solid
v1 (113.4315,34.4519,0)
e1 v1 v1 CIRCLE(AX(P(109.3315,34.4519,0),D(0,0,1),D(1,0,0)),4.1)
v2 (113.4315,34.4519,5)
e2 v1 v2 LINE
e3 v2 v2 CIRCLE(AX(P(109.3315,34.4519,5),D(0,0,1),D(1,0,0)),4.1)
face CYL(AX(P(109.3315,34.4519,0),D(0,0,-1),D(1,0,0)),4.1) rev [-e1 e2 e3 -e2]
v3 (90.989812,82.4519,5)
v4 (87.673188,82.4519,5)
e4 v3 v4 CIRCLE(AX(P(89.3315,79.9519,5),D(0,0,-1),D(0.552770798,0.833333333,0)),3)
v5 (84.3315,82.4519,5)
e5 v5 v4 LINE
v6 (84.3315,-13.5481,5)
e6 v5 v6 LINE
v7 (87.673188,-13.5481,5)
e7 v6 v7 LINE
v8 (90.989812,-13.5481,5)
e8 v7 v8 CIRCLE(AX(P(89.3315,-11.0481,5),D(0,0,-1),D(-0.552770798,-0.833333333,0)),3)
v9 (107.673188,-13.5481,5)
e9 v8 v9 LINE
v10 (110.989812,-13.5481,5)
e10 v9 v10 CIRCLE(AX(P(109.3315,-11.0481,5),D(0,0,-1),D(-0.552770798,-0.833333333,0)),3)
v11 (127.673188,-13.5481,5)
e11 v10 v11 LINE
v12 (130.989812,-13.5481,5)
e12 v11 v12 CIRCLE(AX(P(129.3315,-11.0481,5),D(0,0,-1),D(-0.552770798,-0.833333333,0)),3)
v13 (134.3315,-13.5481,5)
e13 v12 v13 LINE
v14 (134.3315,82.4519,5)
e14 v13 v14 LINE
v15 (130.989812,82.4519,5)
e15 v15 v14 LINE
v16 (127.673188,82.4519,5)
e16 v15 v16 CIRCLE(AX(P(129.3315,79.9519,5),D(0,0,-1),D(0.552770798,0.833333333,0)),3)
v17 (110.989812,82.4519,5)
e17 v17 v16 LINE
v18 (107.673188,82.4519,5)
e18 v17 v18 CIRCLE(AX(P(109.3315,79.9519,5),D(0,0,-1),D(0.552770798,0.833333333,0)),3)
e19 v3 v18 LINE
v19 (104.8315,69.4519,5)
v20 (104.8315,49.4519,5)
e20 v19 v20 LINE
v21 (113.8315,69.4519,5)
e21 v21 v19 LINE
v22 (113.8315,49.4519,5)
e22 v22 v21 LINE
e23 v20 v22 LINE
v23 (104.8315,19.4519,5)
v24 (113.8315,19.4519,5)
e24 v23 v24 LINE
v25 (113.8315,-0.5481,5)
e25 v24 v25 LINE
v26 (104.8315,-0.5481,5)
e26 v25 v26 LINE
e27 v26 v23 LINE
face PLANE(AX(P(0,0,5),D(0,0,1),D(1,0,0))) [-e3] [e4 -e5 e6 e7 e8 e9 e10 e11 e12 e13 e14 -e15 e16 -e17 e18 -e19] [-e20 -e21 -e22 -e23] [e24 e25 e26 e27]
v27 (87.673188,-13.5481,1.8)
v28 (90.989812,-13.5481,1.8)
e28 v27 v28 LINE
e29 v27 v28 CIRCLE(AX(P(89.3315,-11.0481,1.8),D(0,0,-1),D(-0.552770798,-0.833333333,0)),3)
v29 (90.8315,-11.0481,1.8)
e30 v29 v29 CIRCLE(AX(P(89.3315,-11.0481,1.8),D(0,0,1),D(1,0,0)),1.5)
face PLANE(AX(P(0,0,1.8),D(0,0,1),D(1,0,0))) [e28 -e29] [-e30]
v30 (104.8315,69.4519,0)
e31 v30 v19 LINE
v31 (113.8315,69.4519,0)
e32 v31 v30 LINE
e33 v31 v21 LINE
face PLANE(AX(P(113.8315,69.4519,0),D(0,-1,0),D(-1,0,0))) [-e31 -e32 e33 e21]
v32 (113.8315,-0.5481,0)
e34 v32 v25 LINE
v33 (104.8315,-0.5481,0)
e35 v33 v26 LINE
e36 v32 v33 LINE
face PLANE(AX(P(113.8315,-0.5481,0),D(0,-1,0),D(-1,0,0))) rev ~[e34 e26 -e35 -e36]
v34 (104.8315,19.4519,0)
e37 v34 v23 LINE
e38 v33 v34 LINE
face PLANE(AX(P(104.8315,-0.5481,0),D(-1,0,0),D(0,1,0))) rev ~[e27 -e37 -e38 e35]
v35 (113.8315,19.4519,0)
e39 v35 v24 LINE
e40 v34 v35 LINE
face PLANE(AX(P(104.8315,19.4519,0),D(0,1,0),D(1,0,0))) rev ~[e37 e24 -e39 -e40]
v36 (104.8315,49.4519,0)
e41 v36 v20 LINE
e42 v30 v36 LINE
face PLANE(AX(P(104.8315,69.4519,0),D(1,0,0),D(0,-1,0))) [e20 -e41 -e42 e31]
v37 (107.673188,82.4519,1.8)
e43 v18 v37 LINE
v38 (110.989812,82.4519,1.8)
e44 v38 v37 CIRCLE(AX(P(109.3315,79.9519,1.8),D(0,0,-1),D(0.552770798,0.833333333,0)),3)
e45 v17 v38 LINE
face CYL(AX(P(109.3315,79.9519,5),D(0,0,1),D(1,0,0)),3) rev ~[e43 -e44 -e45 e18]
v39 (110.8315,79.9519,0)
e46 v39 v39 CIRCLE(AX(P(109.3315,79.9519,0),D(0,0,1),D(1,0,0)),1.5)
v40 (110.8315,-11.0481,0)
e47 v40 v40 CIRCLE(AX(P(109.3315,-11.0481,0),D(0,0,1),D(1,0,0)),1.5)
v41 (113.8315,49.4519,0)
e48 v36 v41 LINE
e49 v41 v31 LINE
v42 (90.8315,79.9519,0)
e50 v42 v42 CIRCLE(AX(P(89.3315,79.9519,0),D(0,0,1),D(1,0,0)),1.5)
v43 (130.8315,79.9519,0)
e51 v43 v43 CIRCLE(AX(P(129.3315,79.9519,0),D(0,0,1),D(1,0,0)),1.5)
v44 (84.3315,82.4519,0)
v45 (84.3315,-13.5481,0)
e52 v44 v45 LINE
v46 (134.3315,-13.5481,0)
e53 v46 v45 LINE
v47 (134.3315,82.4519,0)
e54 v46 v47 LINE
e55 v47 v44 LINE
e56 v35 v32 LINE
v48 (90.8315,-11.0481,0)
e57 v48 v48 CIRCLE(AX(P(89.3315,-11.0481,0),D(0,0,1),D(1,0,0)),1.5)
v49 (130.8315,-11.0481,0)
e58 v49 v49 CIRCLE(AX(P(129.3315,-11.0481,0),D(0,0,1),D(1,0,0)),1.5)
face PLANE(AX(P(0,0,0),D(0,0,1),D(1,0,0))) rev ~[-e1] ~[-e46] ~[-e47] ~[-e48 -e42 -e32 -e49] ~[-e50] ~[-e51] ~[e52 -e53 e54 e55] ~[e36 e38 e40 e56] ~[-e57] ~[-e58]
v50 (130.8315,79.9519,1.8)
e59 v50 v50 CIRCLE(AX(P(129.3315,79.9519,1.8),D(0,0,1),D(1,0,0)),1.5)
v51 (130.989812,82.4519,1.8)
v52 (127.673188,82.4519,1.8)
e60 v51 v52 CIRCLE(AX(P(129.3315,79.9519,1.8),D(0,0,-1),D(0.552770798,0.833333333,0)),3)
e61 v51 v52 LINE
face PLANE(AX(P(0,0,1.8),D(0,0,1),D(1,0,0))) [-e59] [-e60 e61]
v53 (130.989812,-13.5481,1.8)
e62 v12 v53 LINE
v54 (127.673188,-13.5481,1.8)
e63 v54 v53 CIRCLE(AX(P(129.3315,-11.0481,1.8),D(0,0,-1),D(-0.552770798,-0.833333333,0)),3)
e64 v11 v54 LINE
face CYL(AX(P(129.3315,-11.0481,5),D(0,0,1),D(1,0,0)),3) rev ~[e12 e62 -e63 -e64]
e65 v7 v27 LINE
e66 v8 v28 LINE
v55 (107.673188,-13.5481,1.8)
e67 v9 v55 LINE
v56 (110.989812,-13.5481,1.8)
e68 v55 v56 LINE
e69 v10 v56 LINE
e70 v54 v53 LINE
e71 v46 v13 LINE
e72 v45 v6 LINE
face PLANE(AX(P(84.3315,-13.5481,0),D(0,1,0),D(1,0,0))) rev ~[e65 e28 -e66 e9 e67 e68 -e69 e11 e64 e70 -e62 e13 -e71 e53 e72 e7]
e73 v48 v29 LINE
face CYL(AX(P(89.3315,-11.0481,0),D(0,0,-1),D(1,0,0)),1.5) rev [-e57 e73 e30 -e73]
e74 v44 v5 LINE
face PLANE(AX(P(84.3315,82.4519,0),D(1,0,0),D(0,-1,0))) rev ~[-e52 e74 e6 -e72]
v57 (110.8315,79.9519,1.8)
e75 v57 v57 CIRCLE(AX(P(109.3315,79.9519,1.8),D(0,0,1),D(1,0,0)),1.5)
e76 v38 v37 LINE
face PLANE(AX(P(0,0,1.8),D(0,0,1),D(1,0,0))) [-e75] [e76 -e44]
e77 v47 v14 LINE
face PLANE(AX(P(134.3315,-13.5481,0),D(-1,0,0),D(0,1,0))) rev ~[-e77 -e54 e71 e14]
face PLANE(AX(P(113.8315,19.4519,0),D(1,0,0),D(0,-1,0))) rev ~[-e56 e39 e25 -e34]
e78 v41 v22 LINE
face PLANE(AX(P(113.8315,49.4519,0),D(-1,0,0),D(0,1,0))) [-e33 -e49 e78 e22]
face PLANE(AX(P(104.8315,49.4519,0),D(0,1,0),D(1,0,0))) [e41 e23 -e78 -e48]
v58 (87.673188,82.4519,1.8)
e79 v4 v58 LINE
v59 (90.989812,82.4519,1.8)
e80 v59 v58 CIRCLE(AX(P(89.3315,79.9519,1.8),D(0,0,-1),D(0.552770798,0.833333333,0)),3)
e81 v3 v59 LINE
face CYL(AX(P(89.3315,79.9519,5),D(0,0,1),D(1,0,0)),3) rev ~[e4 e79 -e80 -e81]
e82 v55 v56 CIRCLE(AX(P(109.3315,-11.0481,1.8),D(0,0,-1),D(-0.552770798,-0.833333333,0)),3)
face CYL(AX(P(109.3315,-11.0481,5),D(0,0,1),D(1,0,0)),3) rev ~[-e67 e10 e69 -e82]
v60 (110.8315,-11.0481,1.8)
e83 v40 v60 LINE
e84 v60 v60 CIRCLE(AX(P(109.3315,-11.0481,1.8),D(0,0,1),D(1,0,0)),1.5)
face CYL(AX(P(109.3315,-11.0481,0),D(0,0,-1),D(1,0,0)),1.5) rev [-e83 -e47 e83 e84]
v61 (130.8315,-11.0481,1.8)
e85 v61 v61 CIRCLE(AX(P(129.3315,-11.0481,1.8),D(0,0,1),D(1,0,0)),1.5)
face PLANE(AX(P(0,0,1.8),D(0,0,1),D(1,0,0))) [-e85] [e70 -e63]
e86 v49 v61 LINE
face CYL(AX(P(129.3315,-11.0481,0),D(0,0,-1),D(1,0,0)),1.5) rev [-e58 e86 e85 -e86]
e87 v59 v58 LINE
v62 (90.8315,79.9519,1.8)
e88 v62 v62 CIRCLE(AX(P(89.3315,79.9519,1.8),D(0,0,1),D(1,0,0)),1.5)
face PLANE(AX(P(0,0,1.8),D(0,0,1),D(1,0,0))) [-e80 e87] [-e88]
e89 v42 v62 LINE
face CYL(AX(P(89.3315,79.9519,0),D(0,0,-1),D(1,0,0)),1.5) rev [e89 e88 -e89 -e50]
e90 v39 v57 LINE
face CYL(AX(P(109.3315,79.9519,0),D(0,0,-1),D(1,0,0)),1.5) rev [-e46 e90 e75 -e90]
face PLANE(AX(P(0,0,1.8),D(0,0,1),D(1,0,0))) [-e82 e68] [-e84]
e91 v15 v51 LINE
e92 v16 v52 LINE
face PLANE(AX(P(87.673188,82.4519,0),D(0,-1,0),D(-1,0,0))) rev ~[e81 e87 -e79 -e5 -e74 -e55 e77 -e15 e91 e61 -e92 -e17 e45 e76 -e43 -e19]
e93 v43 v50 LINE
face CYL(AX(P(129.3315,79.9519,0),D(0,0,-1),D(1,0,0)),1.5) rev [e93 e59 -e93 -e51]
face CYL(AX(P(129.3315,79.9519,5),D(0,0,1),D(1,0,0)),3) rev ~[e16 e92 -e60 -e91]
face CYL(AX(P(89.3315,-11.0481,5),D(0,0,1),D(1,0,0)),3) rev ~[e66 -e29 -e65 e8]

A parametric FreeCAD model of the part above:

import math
import FreeCAD as App
import Part
import Sketcher

V = App.Vector

doc = App.newDocument("Part")
params = doc.addObject("Spreadsheet::Sheet", "Params")
for row, (alias, value) in enumerate([
    ("sketch1_diameter", "3 mm"),
    ("sketch1_diameter2", "8.2 mm"),
    ("sketch1_width", "50 mm"),
    ("sketch1_width2", "9 mm"),
    ("sketch1_height", "96 mm"),
    ("pad1_length", "5 mm"),
    ("sketch2_diameter", "3 mm"),
    ("sketch2_radius", "3 mm"),
    ("pocket1_length", "3.2 mm"),
], start=1):
    params.set(f"A{row}", alias)
    params.set(f"B{row}", "=" + value)
    params.setAlias(f"B{row}", alias)

body = doc.addObject("PartDesign::Body", "Body")

# Sketch on XY plane
sketch1 = doc.addObject("Sketcher::SketchObject", "Sketch")
body.addObject(sketch1)
sketch1.AttachmentSupport = (doc.XY_Plane, [""])
sketch1.MapMode = "FlatFace"
sketch1.addGeometry(Part.LineSegment(V(84.3, 82.5, 0), V(84.3, -13.5, 0)), False)
sketch1.addGeometry(Part.LineSegment(V(84.3, -13.5, 0), V(134.3, -13.5, 0)), False)
sketch1.addGeometry(Part.LineSegment(V(134.3, -13.5, 0), V(134.3, 82.5, 0)), False)
sketch1.addGeometry(Part.LineSegment(V(134.3, 82.5, 0), V(84.3, 82.5, 0)), False)
sketch1.addGeometry(Part.LineSegment(V(113.8, 19.5, 0), V(113.8, -0.5, 0)), False)
sketch1.addGeometry(Part.LineSegment(V(113.8, -0.5, 0), V(104.8, -0.5, 0)), False)
sketch1.addGeometry(Part.LineSegment(V(104.8, -0.5, 0), V(104.8, 19.5, 0)), False)
sketch1.addGeometry(Part.LineSegment(V(104.8, 19.5, 0), V(113.8, 19.5, 0)), False)
sketch1.addGeometry(Part.Circle(V(109.3, 34.5, 0), V(0, 0, 1), 4.1), False)
sketch1.addGeometry(Part.LineSegment(V(113.8, 69.5, 0), V(113.8, 49.5, 0)), False)
sketch1.addGeometry(Part.LineSegment(V(113.8, 49.5, 0), V(104.8, 49.5, 0)), False)
sketch1.addGeometry(Part.LineSegment(V(104.8, 49.5, 0), V(104.8, 69.5, 0)), False)
sketch1.addGeometry(Part.LineSegment(V(104.8, 69.5, 0), V(113.8, 69.5, 0)), False)
sketch1.addGeometry(Part.Circle(V(89.3, 80, 0), V(0, 0, 1), 1.5), False)
sketch1.addGeometry(Part.Circle(V(109.3, 80, 0), V(0, 0, 1), 1.5), False)
sketch1.addGeometry(Part.Circle(V(129.3, 80, 0), V(0, 0, 1), 1.5), False)
sketch1.addGeometry(Part.Circle(V(129.3, -11, 0), V(0, 0, 1), 1.5), False)
sketch1.addGeometry(Part.Circle(V(109.3, -11, 0), V(0, 0, 1), 1.5), False)
sketch1.addGeometry(Part.Circle(V(89.3, -11, 0), V(0, 0, 1), 1.5), False)
sketch1.addConstraint(Sketcher.Constraint("Coincident", 0, 2, 1, 1))
sketch1.addConstraint(Sketcher.Constraint("Coincident", 1, 2, 2, 1))
sketch1.addConstraint(Sketcher.Constraint("Coincident", 2, 2, 3, 1))
sketch1.addConstraint(Sketcher.Constraint("Coincident", 3, 2, 0, 1))
sketch1.addConstraint(Sketcher.Constraint("Coincident", 4, 2, 5, 1))
sketch1.addConstraint(Sketcher.Constraint("Coincident", 5, 2, 6, 1))
sketch1.addConstraint(Sketcher.Constraint("Coincident", 6, 2, 7, 1))
sketch1.addConstraint(Sketcher.Constraint("Coincident", 7, 2, 4, 1))
sketch1.addConstraint(Sketcher.Constraint("Coincident", 9, 2, 10, 1))
sketch1.addConstraint(Sketcher.Constraint("Coincident", 10, 2, 11, 1))
sketch1.addConstraint(Sketcher.Constraint("Coincident", 11, 2, 12, 1))
sketch1.addConstraint(Sketcher.Constraint("Coincident", 12, 2, 9, 1))
sketch1.addConstraint(Sketcher.Constraint("Vertical", 0))
sketch1.addConstraint(Sketcher.Constraint("Horizontal", 1))
sketch1.addConstraint(Sketcher.Constraint("Vertical", 2))
sketch1.addConstraint(Sketcher.Constraint("Horizontal", 3))
sketch1.addConstraint(Sketcher.Constraint("Vertical", 4))
sketch1.addConstraint(Sketcher.Constraint("Horizontal", 5))
sketch1.addConstraint(Sketcher.Constraint("Vertical", 6))
sketch1.addConstraint(Sketcher.Constraint("Horizontal", 7))
sketch1.addConstraint(Sketcher.Constraint("Vertical", 9))
sketch1.addConstraint(Sketcher.Constraint("Horizontal", 10))
sketch1.addConstraint(Sketcher.Constraint("Vertical", 11))
sketch1.addConstraint(Sketcher.Constraint("Horizontal", 12))
sketch1.addConstraint(Sketcher.Constraint("Equal", 13, 14))
sketch1.addConstraint(Sketcher.Constraint("Equal", 14, 15))
sketch1.addConstraint(Sketcher.Constraint("Equal", 15, 16))
sketch1.addConstraint(Sketcher.Constraint("Equal", 16, 17))
sketch1.addConstraint(Sketcher.Constraint("Equal", 17, 18))
sketch1.addConstraint(Sketcher.Constraint("Horizontal", 13, 3, 14, 3))
sketch1.addConstraint(Sketcher.Constraint("Horizontal", 14, 3, 15, 3))
sketch1.addConstraint(Sketcher.Constraint("Horizontal", 16, 3, 17, 3))
sketch1.addConstraint(Sketcher.Constraint("Horizontal", 17, 3, 18, 3))
sketch1.addConstraint(Sketcher.Constraint("Vertical", 8, 3, 14, 3))
sketch1.addConstraint(Sketcher.Constraint("Vertical", 15, 3, 16, 3))
sketch1.addConstraint(Sketcher.Constraint("Vertical", 14, 3, 17, 3))
sketch1.addConstraint(Sketcher.Constraint("Vertical", 13, 3, 18, 3))
sketch1.addConstraint(Sketcher.Constraint("Vertical", 7, 2, 9, 2))
sketch1.addConstraint(Sketcher.Constraint("Vertical", 6, 2, 10, 2))
sketch1.addConstraint(Sketcher.Constraint("Equal", 6, 9))
sketch1.addConstraint(Sketcher.Constraint("Diameter", 13, 3.0))
sketch1.addConstraint(Sketcher.Constraint("Diameter", 8, 8.2))
sketch1.addConstraint(Sketcher.Constraint("DistanceX", 1, 1, 1, 2, 50.0))
sketch1.addConstraint(Sketcher.Constraint("DistanceX", 5, 2, 5, 1, 9.0))
sketch1.addConstraint(Sketcher.Constraint("DistanceY", 0, 2, 0, 1, 96.0))
sketch1.addConstraint(Sketcher.Constraint("DistanceY", 4, 2, 4, 1, 20.0))
sketch1.addConstraint(Sketcher.Constraint("DistanceX", 13, 3, 8, 3, 20.0))
sketch1.addConstraint(Sketcher.Constraint("DistanceX", 14, 3, 15, 3, 20.0))
sketch1.addConstraint(Sketcher.Constraint("DistanceY", 0, 2, 18, 3, 2.5))
sketch1.addConstraint(Sketcher.Constraint("DistanceY", 15, 3, 2, 2, 2.5))
sketch1.addConstraint(Sketcher.Constraint("DistanceX", 0, 2, 18, 3, 5.0))
sketch1.addConstraint(Sketcher.Constraint("DistanceY", 0, 2, 8, 3, 48.0))
sketch1.addConstraint(Sketcher.Constraint("DistanceY", 1, 2, 4, 2, 13.0))
sketch1.addConstraint(Sketcher.Constraint("DistanceY", 8, 3, 9, 2, 15.0))
sketch1.addConstraint(Sketcher.Constraint("DistanceX", 17, 3, 4, 2, 4.5))
sketch1.addConstraint(Sketcher.Constraint("DistanceY", -1, 1, 8, 3, 34.452))
sketch1.addConstraint(Sketcher.Constraint("DistanceX", -1, 1, 8, 3, 109.3315))
sketch1.setExpression("Constraints[40]", "Params.sketch1_diameter")
sketch1.setExpression("Constraints[41]", "Params.sketch1_diameter2")
sketch1.setExpression("Constraints[42]", "Params.sketch1_width")
sketch1.setExpression("Constraints[43]", "Params.sketch1_width2")
sketch1.setExpression("Constraints[44]", "Params.sketch1_height")
pad1 = doc.addObject("PartDesign::Pad", "Pad")
body.addObject(pad1)
pad1.Profile = sketch1
pad1.setExpression("Length", "Params.pad1_length")

# Sketch on XY plane
sketch2 = doc.addObject("Sketcher::SketchObject", "Sketch001")
body.addObject(sketch2)
sketch2.AttachmentSupport = (doc.XY_Plane, [""])
sketch2.MapMode = "FlatFace"
sketch2.AttachmentOffset = App.Placement(V(0, 0, 5), App.Rotation())
sketch2.addGeometry(Part.LineSegment(V(91, 82.5, 0), V(87.7, 82.5, 0)), False)
sketch2.addGeometry(Part.ArcOfCircle(Part.Circle(V(89.3, 80, 0), V(0, 0, 1), 3), math.radians(124), math.radians(416)), False)
sketch2.addGeometry(Part.Circle(V(89.3, 80, 0), V(0, 0, 1), 1.5), False)
sketch2.addGeometry(Part.ArcOfCircle(Part.Circle(V(89.3, -11, 0), V(0, 0, 1), 3), math.radians(-56), math.radians(236)), False)
sketch2.addGeometry(Part.LineSegment(V(87.7, -13.5, 0), V(91, -13.5, 0)), False)
sketch2.addGeometry(Part.Circle(V(89.3, -11, 0), V(0, 0, 1), 1.5), False)
sketch2.addGeometry(Part.LineSegment(V(111, 82.5, 0), V(107.7, 82.5, 0)), False)
sketch2.addGeometry(Part.ArcOfCircle(Part.Circle(V(109.3, 80, 0), V(0, 0, 1), 3), math.radians(124), math.radians(416)), False)
sketch2.addGeometry(Part.Circle(V(109.3, 80, 0), V(0, 0, 1), 1.5), False)
sketch2.addGeometry(Part.ArcOfCircle(Part.Circle(V(109.3, -11, 0), V(0, 0, 1), 3), math.radians(-56), math.radians(236)), False)
sketch2.addGeometry(Part.LineSegment(V(107.7, -13.5, 0), V(111, -13.5, 0)), False)
sketch2.addGeometry(Part.Circle(V(109.3, -11, 0), V(0, 0, 1), 1.5), False)
sketch2.addGeometry(Part.LineSegment(V(131, 82.5, 0), V(127.7, 82.5, 0)), False)
sketch2.addGeometry(Part.ArcOfCircle(Part.Circle(V(129.3, 80, 0), V(0, 0, 1), 3), math.radians(124), math.radians(416)), False)
sketch2.addGeometry(Part.Circle(V(129.3, 80, 0), V(0, 0, 1), 1.5), False)
sketch2.addGeometry(Part.ArcOfCircle(Part.Circle(V(129.3, -11, 0), V(0, 0, 1), 3), math.radians(-56), math.radians(236)), False)
sketch2.addGeometry(Part.LineSegment(V(127.7, -13.5, 0), V(131, -13.5, 0)), False)
sketch2.addGeometry(Part.Circle(V(129.3, -11, 0), V(0, 0, 1), 1.5), False)
sketch2.addConstraint(Sketcher.Constraint("Coincident", 0, 1, 1, 2))
sketch2.addConstraint(Sketcher.Constraint("Coincident", 1, 1, 0, 2))
sketch2.addConstraint(Sketcher.Constraint("Coincident", 3, 1, 4, 2))
sketch2.addConstraint(Sketcher.Constraint("Coincident", 4, 1, 3, 2))
sketch2.addConstraint(Sketcher.Constraint("Coincident", 6, 1, 7, 2))
sketch2.addConstraint(Sketcher.Constraint("Coincident", 7, 1, 6, 2))
sketch2.addConstraint(Sketcher.Constraint("Coincident", 9, 1, 10, 2))
sketch2.addConstraint(Sketcher.Constraint("Coincident", 10, 1, 9, 2))
sketch2.addConstraint(Sketcher.Constraint("Coincident", 12, 1, 13, 2))
sketch2.addConstraint(Sketcher.Constraint("Coincident", 13, 1, 12, 2))
sketch2.addConstraint(Sketcher.Constraint("Coincident", 15, 1, 16, 2))
sketch2.addConstraint(Sketcher.Constraint("Coincident", 16, 1, 15, 2))
sketch2.addConstraint(Sketcher.Constraint("Horizontal", 0))
sketch2.addConstraint(Sketcher.Constraint("Horizontal", 4))
sketch2.addConstraint(Sketcher.Constraint("Horizontal", 6))
sketch2.addConstraint(Sketcher.Constraint("Horizontal", 10))
sketch2.addConstraint(Sketcher.Constraint("Horizontal", 12))
sketch2.addConstraint(Sketcher.Constraint("Horizontal", 16))
sketch2.addConstraint(Sketcher.Constraint("Coincident", 2, 3, 1, 3))
sketch2.addConstraint(Sketcher.Constraint("Coincident", 5, 3, 3, 3))
sketch2.addConstraint(Sketcher.Constraint("Coincident", 8, 3, 7, 3))
sketch2.addConstraint(Sketcher.Constraint("Coincident", 11, 3, 9, 3))
sketch2.addConstraint(Sketcher.Constraint("Coincident", 14, 3, 13, 3))
sketch2.addConstraint(Sketcher.Constraint("Coincident", 17, 3, 15, 3))
sketch2.addConstraint(Sketcher.Constraint("Equal", 1, 3))
sketch2.addConstraint(Sketcher.Constraint("Equal", 2, 5))
sketch2.addConstraint(Sketcher.Constraint("Equal", 3, 7))
sketch2.addConstraint(Sketcher.Constraint("Equal", 5, 8))
sketch2.addConstraint(Sketcher.Constraint("Equal", 7, 9))
sketch2.addConstraint(Sketcher.Constraint("Equal", 8, 11))
sketch2.addConstraint(Sketcher.Constraint("Equal", 9, 13))
sketch2.addConstraint(Sketcher.Constraint("Equal", 11, 14))
sketch2.addConstraint(Sketcher.Constraint("Equal", 13, 15))
sketch2.addConstraint(Sketcher.Constraint("Equal", 14, 17))
sketch2.addConstraint(Sketcher.Constraint("Horizontal", 2, 3, 7, 3))
sketch2.addConstraint(Sketcher.Constraint("Horizontal", 5, 3, 9, 3))
sketch2.addConstraint(Sketcher.Constraint("Horizontal", 8, 3, 13, 3))
sketch2.addConstraint(Sketcher.Constraint("Horizontal", 11, 3, 15, 3))
sketch2.addConstraint(Sketcher.Constraint("Horizontal", 1, 1, 6, 1))
sketch2.addConstraint(Sketcher.Constraint("Horizontal", 4, 1, 9, 1))
sketch2.addConstraint(Sketcher.Constraint("Horizontal", 7, 1, 12, 1))
sketch2.addConstraint(Sketcher.Constraint("Horizontal", 10, 1, 15, 1))
sketch2.addConstraint(Sketcher.Constraint("Vertical", 2, 3, 3, 3))
sketch2.addConstraint(Sketcher.Constraint("Vertical", 8, 3, 9, 3))
sketch2.addConstraint(Sketcher.Constraint("Vertical", 14, 3, 15, 3))
sketch2.addConstraint(Sketcher.Constraint("Vertical", 0, 1, 3, 1))
sketch2.addConstraint(Sketcher.Constraint("Diameter", 2, 3.0))
sketch2.addConstraint(Sketcher.Constraint("Radius", 1, 3.0))
sketch2.addConstraint(Sketcher.Constraint("DistanceX", 1, 3, 7, 3, 20.0))
sketch2.addConstraint(Sketcher.Constraint("DistanceX", 7, 3, 13, 3, 20.0))
sketch2.addConstraint(Sketcher.Constraint("DistanceY", 1, 3, 0, 1, 2.5))
sketch2.addConstraint(Sketcher.Constraint("DistanceY", 3, 3, 1, 3, 91.0))
sketch2.addConstraint(Sketcher.Constraint("DistanceY", -1, 1, 1, 3, 79.952))
sketch2.addConstraint(Sketcher.Constraint("DistanceX", -1, 1, 1, 3, 89.3315))
sketch2.setExpression("Constraints[46]", "Params.sketch2_diameter")
sketch2.setExpression("Constraints[47]", "Params.sketch2_radius")
pocket1 = doc.addObject("PartDesign::Pocket", "Pocket")
body.addObject(pocket1)
pocket1.Profile = sketch2
pocket1.setExpression("Length", "Params.pocket1_length")

doc.recompute()
